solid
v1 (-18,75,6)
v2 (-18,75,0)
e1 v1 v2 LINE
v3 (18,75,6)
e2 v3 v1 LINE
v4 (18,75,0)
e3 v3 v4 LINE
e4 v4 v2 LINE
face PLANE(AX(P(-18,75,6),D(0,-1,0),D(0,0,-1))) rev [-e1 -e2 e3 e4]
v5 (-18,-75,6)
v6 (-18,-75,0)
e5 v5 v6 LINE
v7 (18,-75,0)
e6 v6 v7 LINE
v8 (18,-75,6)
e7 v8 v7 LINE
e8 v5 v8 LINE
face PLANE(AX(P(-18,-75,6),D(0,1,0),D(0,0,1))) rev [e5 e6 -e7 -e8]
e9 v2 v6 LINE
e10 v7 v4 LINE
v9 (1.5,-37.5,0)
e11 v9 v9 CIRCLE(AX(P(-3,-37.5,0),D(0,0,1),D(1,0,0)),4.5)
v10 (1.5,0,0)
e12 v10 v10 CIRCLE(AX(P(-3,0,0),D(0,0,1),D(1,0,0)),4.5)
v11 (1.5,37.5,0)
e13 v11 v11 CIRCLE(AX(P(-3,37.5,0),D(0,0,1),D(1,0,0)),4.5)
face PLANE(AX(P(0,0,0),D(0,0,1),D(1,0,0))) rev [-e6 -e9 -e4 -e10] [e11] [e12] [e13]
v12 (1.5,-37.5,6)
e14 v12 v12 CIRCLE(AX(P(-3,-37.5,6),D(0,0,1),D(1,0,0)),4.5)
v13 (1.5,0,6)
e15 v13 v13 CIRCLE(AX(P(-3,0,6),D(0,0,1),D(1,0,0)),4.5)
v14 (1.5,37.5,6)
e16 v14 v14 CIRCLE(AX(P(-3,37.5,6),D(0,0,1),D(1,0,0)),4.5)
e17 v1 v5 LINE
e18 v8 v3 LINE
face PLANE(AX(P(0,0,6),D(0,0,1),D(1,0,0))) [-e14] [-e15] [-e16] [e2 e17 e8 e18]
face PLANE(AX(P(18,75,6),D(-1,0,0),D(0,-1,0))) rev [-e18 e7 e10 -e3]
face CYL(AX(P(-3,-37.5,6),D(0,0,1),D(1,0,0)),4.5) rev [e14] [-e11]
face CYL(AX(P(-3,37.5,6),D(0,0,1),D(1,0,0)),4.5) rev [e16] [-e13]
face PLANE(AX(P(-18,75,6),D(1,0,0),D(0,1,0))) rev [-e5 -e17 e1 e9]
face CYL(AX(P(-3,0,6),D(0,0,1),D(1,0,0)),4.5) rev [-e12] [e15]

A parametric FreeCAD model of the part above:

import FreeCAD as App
import Part
import Sketcher


def add_polygon(sketch, points):
    """Adds a closed chain of lines whose ends are joined by coincident constraints."""
    first, n = sketch.GeometryCount, len(points)
    for a, b in zip(points, points[1:] + points[:1]):
        sketch.addGeometry(Part.LineSegment(App.Vector(*a, 0), App.Vector(*b, 0)), False)
    for i in range(n):
        sketch.addConstraint(Sketcher.Constraint("Coincident", first + i, 2, first + (i + 1) % n, 1))

doc = App.newDocument("Part")
body = doc.addObject("PartDesign::Body", "Body")

# Sketch on XY plane
sketch1 = body.newObject("Sketcher::SketchObject", "Sketch")
sketch1.AttachmentSupport = (doc.getObject("XY_Plane"), [""])
sketch1.MapMode = "FlatFace"
add_polygon(sketch1, [(-18, 75), (-18, -75), (18, -75), (18, 75)])  # lines 0-3
sketch1.addConstraint([
    Sketcher.Constraint("Vertical", 0),
    Sketcher.Constraint("Horizontal", 1),
    Sketcher.Constraint("Vertical", 2),
    Sketcher.Constraint("Horizontal", 3),
    Sketcher.Constraint("Symmetric", 0, 2, 2, 2, -1, 1),
    Sketcher.Constraint("DistanceX", 1, 1, 1, 2, 36.0),
    Sketcher.Constraint("DistanceY", 0, 2, 0, 1, 150.0),
])
pad1 = body.newObject("PartDesign::Pad", "Pad")
pad1.Profile = sketch1
pad1.Length = 6

# Sketch on XY plane
sketch2 = body.newObject("Sketcher::SketchObject", "Sketch001")
sketch2.AttachmentSupport = (doc.getObject("XY_Plane"), [""])
sketch2.MapMode = "FlatFace"
sketch2.AttachmentOffset = App.Placement(App.Vector(0, 0, 6), App.Rotation())
sketch2.addGeometry([
    Part.Circle(App.Vector(-3, 37.5, 0), App.Vector(0, 0, 1), 4.5),
    Part.Circle(App.Vector(-3, 0, 0), App.Vector(0, 0, 1), 4.5),
    Part.Circle(App.Vector(-3, -37.5, 0), App.Vector(0, 0, 1), 4.5),
], False)
sketch2.addConstraint([
    Sketcher.Constraint("Equal", 0, 1),
    Sketcher.Constraint("Equal", 1, 2),
    Sketcher.Constraint("Symmetric", 0, 3, 2, 3, -1),
    Sketcher.Constraint("PointOnObject", 1, 3, -1),
    Sketcher.Constraint("Vertical", 0, 3, 1, 3),
    Sketcher.Constraint("Diameter", 0, 9.0),
    Sketcher.Constraint("DistanceX", 0, 3, -1, 1, 3.0),
    Sketcher.Constraint("DistanceY", 2, 3, 0, 3, 75.0),
])
doc.recompute()
hole = body.newObject("PartDesign::Hole", "Hole")
hole.Profile = sketch2
hole.ThreadType = "None"
hole.Diameter = 9
hole.DepthType = "ThroughAll"

doc.recompute()
